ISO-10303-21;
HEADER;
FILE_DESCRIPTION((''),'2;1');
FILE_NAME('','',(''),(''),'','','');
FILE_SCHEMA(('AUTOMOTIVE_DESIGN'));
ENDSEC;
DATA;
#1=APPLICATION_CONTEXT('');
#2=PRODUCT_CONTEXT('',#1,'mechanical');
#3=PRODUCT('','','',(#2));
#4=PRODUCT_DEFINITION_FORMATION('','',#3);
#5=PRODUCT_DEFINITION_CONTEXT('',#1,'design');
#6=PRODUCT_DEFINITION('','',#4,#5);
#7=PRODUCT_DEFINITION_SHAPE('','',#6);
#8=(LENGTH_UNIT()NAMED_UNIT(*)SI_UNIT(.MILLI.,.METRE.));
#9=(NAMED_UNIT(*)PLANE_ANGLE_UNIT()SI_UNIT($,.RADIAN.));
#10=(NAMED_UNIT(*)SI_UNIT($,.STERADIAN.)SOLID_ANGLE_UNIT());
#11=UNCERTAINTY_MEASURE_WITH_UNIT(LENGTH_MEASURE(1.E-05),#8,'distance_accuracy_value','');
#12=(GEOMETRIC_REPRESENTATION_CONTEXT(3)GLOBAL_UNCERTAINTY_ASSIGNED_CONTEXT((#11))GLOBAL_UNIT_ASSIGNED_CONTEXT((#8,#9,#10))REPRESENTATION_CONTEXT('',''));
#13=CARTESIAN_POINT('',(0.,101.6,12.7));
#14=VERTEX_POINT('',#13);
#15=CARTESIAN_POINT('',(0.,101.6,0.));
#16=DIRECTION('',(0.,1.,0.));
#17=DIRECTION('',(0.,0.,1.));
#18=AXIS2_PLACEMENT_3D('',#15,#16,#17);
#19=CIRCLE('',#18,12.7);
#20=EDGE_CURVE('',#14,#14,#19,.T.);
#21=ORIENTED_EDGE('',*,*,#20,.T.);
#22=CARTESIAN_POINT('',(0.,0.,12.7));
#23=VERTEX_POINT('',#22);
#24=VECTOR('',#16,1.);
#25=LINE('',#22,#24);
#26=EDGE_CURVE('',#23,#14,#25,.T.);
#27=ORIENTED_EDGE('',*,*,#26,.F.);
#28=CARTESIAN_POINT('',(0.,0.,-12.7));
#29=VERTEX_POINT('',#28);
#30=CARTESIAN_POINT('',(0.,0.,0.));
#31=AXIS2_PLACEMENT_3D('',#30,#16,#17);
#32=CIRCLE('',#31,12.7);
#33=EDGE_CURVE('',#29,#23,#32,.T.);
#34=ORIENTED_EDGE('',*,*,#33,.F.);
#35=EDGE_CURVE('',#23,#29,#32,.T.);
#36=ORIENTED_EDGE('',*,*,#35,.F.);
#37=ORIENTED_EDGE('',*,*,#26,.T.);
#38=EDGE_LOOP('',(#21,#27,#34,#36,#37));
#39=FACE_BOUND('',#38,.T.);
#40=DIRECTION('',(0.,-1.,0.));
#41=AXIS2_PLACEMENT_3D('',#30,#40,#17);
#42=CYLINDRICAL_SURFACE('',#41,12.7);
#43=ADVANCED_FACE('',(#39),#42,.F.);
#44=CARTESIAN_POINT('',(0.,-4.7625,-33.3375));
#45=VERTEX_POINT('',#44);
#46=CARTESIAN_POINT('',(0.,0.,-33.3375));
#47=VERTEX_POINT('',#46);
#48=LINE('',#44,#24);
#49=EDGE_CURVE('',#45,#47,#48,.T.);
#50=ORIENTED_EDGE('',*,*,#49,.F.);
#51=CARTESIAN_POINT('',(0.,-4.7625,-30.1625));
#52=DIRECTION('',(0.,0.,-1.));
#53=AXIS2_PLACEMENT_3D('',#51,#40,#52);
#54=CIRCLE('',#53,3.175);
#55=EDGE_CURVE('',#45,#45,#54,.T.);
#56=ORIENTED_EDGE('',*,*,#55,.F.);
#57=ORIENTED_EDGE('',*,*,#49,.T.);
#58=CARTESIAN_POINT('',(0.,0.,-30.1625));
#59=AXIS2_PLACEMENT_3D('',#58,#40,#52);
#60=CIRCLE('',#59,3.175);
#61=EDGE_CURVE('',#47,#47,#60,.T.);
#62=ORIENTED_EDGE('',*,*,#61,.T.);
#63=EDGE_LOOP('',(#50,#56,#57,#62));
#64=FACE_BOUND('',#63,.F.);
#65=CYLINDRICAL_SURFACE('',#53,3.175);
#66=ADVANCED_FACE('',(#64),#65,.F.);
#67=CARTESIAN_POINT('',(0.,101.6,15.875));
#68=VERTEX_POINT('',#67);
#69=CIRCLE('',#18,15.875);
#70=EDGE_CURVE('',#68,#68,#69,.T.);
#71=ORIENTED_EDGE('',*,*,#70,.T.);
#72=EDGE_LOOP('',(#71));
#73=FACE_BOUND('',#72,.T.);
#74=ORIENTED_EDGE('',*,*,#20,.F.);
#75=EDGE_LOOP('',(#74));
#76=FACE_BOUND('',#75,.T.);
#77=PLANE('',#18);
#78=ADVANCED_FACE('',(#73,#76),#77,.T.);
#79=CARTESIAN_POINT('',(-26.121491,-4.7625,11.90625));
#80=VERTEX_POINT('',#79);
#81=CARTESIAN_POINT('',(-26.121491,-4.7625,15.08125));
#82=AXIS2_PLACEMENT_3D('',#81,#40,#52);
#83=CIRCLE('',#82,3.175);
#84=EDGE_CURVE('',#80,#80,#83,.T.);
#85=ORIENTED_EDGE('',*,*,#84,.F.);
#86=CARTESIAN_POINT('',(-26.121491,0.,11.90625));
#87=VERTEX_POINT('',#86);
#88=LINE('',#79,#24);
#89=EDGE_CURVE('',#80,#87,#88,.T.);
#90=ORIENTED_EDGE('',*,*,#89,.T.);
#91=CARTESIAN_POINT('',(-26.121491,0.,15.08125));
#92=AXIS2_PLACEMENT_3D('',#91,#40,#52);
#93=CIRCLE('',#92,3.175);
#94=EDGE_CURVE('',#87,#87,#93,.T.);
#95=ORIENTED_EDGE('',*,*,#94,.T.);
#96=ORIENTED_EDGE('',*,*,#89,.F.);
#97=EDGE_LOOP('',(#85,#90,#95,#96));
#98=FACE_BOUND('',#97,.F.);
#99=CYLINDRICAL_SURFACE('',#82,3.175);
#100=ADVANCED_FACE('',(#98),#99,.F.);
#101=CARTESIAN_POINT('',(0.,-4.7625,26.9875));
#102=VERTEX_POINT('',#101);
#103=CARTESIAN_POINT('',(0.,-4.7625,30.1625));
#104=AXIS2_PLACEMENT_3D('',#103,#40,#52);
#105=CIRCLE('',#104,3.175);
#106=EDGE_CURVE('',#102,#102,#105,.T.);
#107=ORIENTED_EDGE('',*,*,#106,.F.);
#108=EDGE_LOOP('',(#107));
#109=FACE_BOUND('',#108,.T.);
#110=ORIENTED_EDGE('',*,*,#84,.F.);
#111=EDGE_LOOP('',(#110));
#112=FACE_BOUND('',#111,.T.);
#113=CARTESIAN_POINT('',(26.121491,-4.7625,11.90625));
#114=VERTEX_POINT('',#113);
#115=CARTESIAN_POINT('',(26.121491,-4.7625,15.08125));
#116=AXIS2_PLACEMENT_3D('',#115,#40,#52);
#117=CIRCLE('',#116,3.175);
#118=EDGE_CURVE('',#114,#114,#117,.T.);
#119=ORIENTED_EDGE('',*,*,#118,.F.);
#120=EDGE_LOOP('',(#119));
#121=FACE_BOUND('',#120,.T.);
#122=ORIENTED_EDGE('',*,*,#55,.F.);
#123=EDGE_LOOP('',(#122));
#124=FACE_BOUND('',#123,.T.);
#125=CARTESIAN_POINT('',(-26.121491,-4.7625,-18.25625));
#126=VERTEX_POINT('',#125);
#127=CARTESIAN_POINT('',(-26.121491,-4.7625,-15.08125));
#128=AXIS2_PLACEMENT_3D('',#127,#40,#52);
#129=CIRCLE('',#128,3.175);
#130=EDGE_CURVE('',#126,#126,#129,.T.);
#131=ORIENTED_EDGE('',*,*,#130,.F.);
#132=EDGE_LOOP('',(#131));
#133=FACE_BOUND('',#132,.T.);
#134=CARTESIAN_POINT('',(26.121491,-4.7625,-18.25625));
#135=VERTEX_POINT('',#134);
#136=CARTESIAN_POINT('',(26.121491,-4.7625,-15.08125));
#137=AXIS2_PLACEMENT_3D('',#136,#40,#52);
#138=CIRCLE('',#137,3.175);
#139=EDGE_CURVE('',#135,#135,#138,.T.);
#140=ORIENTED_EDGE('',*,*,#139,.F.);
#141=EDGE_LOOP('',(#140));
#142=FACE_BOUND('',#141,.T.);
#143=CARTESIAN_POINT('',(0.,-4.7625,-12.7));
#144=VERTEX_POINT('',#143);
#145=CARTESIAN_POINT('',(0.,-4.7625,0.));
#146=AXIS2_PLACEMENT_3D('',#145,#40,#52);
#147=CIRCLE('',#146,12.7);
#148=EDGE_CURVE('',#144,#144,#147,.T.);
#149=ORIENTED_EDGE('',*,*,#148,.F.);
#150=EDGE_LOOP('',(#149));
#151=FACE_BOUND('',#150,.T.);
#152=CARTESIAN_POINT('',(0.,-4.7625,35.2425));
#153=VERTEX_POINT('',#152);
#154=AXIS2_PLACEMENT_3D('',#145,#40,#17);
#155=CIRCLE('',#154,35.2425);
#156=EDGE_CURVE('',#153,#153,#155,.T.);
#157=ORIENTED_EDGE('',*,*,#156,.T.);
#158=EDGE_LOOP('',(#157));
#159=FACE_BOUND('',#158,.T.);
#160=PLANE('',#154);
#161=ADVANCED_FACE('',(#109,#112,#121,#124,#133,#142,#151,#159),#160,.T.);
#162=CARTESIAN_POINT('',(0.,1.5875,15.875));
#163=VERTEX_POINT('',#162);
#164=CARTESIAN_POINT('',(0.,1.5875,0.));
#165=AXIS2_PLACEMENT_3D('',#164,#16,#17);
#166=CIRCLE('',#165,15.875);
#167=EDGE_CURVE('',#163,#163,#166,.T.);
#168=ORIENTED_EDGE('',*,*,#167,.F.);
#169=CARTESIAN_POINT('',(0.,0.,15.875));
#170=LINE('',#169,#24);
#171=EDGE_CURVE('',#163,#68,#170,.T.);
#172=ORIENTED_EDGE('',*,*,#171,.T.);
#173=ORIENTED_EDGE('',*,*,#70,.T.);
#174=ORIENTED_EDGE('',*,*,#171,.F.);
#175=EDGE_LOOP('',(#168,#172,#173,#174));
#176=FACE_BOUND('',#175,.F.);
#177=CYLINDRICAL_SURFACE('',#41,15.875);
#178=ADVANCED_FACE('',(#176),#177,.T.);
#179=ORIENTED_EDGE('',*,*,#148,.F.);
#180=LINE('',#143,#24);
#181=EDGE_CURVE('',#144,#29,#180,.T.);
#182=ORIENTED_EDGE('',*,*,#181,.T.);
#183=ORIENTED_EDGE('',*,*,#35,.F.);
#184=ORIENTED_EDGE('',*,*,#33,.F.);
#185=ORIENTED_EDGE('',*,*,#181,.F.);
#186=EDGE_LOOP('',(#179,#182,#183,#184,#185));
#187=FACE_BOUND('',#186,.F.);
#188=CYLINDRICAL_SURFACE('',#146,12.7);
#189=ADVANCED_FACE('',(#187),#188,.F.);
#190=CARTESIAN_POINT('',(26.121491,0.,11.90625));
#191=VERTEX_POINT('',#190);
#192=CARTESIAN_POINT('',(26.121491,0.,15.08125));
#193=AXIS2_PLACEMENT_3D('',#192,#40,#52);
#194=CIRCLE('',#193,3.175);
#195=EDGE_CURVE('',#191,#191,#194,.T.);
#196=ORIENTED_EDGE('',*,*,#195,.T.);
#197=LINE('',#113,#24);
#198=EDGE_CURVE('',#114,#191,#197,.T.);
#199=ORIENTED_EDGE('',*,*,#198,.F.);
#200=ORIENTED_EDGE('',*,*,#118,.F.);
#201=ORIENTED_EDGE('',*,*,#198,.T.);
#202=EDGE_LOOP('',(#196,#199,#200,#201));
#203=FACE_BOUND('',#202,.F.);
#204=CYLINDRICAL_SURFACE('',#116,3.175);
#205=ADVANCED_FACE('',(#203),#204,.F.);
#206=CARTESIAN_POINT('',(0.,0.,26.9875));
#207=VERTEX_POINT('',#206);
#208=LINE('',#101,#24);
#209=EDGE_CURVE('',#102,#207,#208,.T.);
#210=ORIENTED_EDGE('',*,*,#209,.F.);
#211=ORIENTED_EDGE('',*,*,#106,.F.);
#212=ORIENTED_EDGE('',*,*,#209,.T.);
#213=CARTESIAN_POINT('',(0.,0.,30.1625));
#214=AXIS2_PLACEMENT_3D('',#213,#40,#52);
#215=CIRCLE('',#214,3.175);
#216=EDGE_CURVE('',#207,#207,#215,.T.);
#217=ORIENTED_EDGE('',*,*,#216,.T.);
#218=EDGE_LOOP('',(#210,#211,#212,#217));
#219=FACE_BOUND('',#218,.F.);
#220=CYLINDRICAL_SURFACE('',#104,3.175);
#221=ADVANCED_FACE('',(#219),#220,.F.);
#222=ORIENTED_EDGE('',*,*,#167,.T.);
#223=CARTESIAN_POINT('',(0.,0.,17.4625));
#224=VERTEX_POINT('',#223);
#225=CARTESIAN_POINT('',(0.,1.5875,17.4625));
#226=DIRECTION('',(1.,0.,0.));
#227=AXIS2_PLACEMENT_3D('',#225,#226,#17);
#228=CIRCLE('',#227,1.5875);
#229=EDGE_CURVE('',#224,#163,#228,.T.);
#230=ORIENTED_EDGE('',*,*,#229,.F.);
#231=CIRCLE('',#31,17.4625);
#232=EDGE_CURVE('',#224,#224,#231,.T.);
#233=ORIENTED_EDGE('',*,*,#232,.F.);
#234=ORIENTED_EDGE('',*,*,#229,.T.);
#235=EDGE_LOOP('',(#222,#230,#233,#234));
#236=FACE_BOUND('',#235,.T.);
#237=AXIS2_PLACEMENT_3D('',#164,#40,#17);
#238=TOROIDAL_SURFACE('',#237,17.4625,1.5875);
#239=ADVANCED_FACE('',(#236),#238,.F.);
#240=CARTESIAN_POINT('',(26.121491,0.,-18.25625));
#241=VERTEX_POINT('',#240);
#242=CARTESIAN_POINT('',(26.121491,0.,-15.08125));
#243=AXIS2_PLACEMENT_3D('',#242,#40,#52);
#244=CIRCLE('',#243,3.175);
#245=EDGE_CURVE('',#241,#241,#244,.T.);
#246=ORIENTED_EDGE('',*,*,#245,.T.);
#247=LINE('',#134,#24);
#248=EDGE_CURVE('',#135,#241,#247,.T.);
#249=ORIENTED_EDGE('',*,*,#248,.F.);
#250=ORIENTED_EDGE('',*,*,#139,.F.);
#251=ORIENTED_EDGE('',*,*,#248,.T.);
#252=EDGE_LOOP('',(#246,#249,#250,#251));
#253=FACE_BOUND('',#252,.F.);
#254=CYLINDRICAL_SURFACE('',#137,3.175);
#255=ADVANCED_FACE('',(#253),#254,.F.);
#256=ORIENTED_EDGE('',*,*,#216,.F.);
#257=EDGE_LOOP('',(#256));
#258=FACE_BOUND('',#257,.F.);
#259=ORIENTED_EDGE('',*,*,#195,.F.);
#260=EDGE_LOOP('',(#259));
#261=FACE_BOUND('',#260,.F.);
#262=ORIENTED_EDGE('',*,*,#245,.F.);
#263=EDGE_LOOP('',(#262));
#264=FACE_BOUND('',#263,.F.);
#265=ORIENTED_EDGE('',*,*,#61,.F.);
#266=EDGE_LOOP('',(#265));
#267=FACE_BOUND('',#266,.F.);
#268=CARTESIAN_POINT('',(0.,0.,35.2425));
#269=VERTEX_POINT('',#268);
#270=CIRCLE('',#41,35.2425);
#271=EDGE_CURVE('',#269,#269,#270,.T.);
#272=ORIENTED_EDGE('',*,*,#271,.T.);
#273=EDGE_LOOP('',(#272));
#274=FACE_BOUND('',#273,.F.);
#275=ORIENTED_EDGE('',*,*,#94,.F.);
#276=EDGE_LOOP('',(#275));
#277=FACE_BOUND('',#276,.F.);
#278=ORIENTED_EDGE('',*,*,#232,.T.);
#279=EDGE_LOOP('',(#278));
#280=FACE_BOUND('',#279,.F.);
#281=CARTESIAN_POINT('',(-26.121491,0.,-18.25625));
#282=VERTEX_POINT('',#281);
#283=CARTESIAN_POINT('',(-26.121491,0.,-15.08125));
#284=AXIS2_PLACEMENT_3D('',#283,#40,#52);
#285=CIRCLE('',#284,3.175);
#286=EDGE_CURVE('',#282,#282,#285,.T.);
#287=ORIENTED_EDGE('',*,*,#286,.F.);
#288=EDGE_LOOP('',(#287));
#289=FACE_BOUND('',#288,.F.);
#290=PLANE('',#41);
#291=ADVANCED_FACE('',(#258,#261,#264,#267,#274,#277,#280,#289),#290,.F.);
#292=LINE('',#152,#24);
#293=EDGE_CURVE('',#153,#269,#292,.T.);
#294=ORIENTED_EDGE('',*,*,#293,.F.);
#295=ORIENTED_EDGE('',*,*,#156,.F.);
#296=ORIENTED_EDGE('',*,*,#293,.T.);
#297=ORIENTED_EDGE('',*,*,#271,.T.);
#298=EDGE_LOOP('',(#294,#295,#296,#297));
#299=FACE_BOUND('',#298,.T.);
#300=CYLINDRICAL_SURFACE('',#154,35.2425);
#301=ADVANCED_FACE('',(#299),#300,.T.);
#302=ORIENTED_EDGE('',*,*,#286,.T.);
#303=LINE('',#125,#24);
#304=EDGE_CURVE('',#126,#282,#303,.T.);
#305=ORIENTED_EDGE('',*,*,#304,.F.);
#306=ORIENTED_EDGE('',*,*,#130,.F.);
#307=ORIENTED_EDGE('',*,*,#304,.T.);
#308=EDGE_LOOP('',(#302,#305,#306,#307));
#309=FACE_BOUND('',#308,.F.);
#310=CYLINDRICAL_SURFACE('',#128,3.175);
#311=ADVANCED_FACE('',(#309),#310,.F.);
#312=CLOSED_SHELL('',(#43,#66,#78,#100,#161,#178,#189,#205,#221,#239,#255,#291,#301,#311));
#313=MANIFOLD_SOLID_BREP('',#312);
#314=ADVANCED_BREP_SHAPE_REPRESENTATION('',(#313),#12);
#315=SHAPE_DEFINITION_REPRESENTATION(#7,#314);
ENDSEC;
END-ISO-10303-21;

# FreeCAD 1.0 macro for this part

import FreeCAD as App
import Part
import Sketcher
Q = App.Units.Quantity


def edges_at(feature, points):
    """Names of the edges that pass closest to the given points."""
    edges = feature.Shape.Edges
    near = lambda p: min(range(len(edges)), key=lambda i: edges[i].distToShape(Part.Vertex(*p))[0])
    return sorted({f"Edge{near(p) + 1}" for p in points})

doc = App.newDocument("Part")
params = doc.addObject("Spreadsheet::Sheet", "Params")
for row, (alias, value) in enumerate([
    ("sketch1_diameter", "1 in"),
    ("sketch1_diameter2", "1.25 in"),
    ("pad1_length", "4 in"),
    ("sketch2_diameter", "1 in"),
    ("sketch2_diameter2", "2.775 in"),
    ("pad2_length", "0.1875 in"),
    ("fillet_radius", "0.0625 in"),
    ("sketch3_diameter", "0.25 in"),
    ("pocket1_length", "0.1875 in"),
], start=1):
    params.set(f"A{row}", alias)
    params.set(f"B{row}", "=" + value)
    params.setAlias(f"B{row}", alias)

body = doc.addObject("PartDesign::Body", "Body")

sketch1 = doc.addObject("Sketcher::SketchObject", "Sketch")
body.addObject(sketch1)
sketch1.AttachmentSupport = (doc.XZ_Plane, [""])
sketch1.MapMode = "FlatFace"
sketch1.addGeometry([
    Part.Circle(App.Vector(0, 0, 0), App.Vector(0, 0, 1), 16),
    Part.Circle(App.Vector(0, 0, 0), App.Vector(0, 0, 1), 13),
], False)
sketch1.addConstraint([
    Sketcher.Constraint("Coincident", 0, 3, -1, 1),
    Sketcher.Constraint("Coincident", 1, 3, -1, 1),
    Sketcher.Constraint("Diameter", 1, Q("1 in")),
    Sketcher.Constraint("Diameter", 0, Q("1.25 in")),
])
sketch1.setExpression("Constraints[2]", "Params.sketch1_diameter")
sketch1.setExpression("Constraints[3]", "Params.sketch1_diameter2")
pad1 = doc.addObject("PartDesign::Pad", "Pad")
body.addObject(pad1)
pad1.Profile = sketch1
pad1.setExpression("Length", "Params.pad1_length")
pad1.Reversed = True

sketch2 = doc.addObject("Sketcher::SketchObject", "Sketch001")
body.addObject(sketch2)
sketch2.AttachmentSupport = (doc.XZ_Plane, [""])
sketch2.MapMode = "FlatFace"
sketch2.AttachmentOffset = App.Placement(App.Vector(0, 0, 0.1875 * 25.4), App.Rotation())
sketch2.addGeometry([
    Part.Circle(App.Vector(0, 0, 0), App.Vector(0, 0, 1), 35),
    Part.Circle(App.Vector(0, 0, 0), App.Vector(0, 0, 1), 13),
], False)
sketch2.addConstraint([
    Sketcher.Constraint("Coincident", 0, 3, -1, 1),
    Sketcher.Constraint("Coincident", 1, 3, -1, 1),
    Sketcher.Constraint("Diameter", 1, Q("1 in")),
    Sketcher.Constraint("Diameter", 0, Q("2.775 in")),
])
sketch2.setExpression("Constraints[2]", "Params.sketch2_diameter")
sketch2.setExpression("Constraints[3]", "Params.sketch2_diameter2")
pad2 = doc.addObject("PartDesign::Pad", "Pad001")
body.addObject(pad2)
pad2.Profile = sketch2
pad2.setExpression("Length", "Params.pad2_length")
pad2.Reversed = True
doc.recompute()

fillet = doc.addObject("PartDesign::Fillet", "Fillet")
body.addObject(fillet)
fillet.Base = (pad2, edges_at(pad2, [(0, 0, -15.875)]))
fillet.setExpression("Radius", "Params.fillet_radius")

sketch3 = doc.addObject("Sketcher::SketchObject", "Sketch002")
body.addObject(sketch3)
sketch3.AttachmentSupport = (doc.XZ_Plane, [""])
sketch3.MapMode = "FlatFace"
sketch3.AttachmentOffset = App.Placement(App.Vector(0, 0, 0.1875 * 25.4), App.Rotation())
sketch3.addGeometry([
    Part.Circle(App.Vector(0, 30.2, 0), App.Vector(0, 0, 1), 3.2),
    Part.Circle(App.Vector(26.1, 15.1, 0), App.Vector(0, 0, 1), 3.2),
    Part.Circle(App.Vector(26.1, -15.1, 0), App.Vector(0, 0, 1), 3.2),
    Part.Circle(App.Vector(0, -30.2, 0), App.Vector(0, 0, 1), 3.2),
    Part.Circle(App.Vector(-26.1, -15.1, 0), App.Vector(0, 0, 1), 3.2),
    Part.Circle(App.Vector(-26.1, 15.1, 0), App.Vector(0, 0, 1), 3.2),
], False)
sketch3.addConstraint([
    Sketcher.Constraint("Equal", 0, 1),
    Sketcher.Constraint("Equal", 1, 2),
    Sketcher.Constraint("Equal", 2, 3),
    Sketcher.Constraint("Equal", 3, 4),
    Sketcher.Constraint("Equal", 4, 5),
    Sketcher.Constraint("Symmetric", 0, 3, 3, 3, -1, 1),
    Sketcher.Constraint("Symmetric", 1, 3, 4, 3, -1, 1),
    Sketcher.Constraint("Symmetric", 2, 3, 5, 3, -1, 1),
    Sketcher.Constraint("Symmetric", 2, 3, 4, 3, -2),
    Sketcher.Constraint("PointOnObject", 0, 3, -2),
    Sketcher.Constraint("Diameter", 0, Q("0.25 in")),
    Sketcher.Constraint("DistanceY", -1, 1, 0, 3, Q("1.1875 in")),
    Sketcher.Constraint("DistanceY", -1, 1, 1, 3, Q("0.59375 in")),
    Sketcher.Constraint("DistanceX", -1, 1, 1, 3, 26.121491),
])
sketch3.setExpression("Constraints[10]", "Params.sketch3_diameter")
pocket1 = doc.addObject("PartDesign::Pocket", "Pocket")
body.addObject(pocket1)
pocket1.Profile = sketch3
pocket1.setExpression("Length", "Params.pocket1_length")

doc.recompute()
